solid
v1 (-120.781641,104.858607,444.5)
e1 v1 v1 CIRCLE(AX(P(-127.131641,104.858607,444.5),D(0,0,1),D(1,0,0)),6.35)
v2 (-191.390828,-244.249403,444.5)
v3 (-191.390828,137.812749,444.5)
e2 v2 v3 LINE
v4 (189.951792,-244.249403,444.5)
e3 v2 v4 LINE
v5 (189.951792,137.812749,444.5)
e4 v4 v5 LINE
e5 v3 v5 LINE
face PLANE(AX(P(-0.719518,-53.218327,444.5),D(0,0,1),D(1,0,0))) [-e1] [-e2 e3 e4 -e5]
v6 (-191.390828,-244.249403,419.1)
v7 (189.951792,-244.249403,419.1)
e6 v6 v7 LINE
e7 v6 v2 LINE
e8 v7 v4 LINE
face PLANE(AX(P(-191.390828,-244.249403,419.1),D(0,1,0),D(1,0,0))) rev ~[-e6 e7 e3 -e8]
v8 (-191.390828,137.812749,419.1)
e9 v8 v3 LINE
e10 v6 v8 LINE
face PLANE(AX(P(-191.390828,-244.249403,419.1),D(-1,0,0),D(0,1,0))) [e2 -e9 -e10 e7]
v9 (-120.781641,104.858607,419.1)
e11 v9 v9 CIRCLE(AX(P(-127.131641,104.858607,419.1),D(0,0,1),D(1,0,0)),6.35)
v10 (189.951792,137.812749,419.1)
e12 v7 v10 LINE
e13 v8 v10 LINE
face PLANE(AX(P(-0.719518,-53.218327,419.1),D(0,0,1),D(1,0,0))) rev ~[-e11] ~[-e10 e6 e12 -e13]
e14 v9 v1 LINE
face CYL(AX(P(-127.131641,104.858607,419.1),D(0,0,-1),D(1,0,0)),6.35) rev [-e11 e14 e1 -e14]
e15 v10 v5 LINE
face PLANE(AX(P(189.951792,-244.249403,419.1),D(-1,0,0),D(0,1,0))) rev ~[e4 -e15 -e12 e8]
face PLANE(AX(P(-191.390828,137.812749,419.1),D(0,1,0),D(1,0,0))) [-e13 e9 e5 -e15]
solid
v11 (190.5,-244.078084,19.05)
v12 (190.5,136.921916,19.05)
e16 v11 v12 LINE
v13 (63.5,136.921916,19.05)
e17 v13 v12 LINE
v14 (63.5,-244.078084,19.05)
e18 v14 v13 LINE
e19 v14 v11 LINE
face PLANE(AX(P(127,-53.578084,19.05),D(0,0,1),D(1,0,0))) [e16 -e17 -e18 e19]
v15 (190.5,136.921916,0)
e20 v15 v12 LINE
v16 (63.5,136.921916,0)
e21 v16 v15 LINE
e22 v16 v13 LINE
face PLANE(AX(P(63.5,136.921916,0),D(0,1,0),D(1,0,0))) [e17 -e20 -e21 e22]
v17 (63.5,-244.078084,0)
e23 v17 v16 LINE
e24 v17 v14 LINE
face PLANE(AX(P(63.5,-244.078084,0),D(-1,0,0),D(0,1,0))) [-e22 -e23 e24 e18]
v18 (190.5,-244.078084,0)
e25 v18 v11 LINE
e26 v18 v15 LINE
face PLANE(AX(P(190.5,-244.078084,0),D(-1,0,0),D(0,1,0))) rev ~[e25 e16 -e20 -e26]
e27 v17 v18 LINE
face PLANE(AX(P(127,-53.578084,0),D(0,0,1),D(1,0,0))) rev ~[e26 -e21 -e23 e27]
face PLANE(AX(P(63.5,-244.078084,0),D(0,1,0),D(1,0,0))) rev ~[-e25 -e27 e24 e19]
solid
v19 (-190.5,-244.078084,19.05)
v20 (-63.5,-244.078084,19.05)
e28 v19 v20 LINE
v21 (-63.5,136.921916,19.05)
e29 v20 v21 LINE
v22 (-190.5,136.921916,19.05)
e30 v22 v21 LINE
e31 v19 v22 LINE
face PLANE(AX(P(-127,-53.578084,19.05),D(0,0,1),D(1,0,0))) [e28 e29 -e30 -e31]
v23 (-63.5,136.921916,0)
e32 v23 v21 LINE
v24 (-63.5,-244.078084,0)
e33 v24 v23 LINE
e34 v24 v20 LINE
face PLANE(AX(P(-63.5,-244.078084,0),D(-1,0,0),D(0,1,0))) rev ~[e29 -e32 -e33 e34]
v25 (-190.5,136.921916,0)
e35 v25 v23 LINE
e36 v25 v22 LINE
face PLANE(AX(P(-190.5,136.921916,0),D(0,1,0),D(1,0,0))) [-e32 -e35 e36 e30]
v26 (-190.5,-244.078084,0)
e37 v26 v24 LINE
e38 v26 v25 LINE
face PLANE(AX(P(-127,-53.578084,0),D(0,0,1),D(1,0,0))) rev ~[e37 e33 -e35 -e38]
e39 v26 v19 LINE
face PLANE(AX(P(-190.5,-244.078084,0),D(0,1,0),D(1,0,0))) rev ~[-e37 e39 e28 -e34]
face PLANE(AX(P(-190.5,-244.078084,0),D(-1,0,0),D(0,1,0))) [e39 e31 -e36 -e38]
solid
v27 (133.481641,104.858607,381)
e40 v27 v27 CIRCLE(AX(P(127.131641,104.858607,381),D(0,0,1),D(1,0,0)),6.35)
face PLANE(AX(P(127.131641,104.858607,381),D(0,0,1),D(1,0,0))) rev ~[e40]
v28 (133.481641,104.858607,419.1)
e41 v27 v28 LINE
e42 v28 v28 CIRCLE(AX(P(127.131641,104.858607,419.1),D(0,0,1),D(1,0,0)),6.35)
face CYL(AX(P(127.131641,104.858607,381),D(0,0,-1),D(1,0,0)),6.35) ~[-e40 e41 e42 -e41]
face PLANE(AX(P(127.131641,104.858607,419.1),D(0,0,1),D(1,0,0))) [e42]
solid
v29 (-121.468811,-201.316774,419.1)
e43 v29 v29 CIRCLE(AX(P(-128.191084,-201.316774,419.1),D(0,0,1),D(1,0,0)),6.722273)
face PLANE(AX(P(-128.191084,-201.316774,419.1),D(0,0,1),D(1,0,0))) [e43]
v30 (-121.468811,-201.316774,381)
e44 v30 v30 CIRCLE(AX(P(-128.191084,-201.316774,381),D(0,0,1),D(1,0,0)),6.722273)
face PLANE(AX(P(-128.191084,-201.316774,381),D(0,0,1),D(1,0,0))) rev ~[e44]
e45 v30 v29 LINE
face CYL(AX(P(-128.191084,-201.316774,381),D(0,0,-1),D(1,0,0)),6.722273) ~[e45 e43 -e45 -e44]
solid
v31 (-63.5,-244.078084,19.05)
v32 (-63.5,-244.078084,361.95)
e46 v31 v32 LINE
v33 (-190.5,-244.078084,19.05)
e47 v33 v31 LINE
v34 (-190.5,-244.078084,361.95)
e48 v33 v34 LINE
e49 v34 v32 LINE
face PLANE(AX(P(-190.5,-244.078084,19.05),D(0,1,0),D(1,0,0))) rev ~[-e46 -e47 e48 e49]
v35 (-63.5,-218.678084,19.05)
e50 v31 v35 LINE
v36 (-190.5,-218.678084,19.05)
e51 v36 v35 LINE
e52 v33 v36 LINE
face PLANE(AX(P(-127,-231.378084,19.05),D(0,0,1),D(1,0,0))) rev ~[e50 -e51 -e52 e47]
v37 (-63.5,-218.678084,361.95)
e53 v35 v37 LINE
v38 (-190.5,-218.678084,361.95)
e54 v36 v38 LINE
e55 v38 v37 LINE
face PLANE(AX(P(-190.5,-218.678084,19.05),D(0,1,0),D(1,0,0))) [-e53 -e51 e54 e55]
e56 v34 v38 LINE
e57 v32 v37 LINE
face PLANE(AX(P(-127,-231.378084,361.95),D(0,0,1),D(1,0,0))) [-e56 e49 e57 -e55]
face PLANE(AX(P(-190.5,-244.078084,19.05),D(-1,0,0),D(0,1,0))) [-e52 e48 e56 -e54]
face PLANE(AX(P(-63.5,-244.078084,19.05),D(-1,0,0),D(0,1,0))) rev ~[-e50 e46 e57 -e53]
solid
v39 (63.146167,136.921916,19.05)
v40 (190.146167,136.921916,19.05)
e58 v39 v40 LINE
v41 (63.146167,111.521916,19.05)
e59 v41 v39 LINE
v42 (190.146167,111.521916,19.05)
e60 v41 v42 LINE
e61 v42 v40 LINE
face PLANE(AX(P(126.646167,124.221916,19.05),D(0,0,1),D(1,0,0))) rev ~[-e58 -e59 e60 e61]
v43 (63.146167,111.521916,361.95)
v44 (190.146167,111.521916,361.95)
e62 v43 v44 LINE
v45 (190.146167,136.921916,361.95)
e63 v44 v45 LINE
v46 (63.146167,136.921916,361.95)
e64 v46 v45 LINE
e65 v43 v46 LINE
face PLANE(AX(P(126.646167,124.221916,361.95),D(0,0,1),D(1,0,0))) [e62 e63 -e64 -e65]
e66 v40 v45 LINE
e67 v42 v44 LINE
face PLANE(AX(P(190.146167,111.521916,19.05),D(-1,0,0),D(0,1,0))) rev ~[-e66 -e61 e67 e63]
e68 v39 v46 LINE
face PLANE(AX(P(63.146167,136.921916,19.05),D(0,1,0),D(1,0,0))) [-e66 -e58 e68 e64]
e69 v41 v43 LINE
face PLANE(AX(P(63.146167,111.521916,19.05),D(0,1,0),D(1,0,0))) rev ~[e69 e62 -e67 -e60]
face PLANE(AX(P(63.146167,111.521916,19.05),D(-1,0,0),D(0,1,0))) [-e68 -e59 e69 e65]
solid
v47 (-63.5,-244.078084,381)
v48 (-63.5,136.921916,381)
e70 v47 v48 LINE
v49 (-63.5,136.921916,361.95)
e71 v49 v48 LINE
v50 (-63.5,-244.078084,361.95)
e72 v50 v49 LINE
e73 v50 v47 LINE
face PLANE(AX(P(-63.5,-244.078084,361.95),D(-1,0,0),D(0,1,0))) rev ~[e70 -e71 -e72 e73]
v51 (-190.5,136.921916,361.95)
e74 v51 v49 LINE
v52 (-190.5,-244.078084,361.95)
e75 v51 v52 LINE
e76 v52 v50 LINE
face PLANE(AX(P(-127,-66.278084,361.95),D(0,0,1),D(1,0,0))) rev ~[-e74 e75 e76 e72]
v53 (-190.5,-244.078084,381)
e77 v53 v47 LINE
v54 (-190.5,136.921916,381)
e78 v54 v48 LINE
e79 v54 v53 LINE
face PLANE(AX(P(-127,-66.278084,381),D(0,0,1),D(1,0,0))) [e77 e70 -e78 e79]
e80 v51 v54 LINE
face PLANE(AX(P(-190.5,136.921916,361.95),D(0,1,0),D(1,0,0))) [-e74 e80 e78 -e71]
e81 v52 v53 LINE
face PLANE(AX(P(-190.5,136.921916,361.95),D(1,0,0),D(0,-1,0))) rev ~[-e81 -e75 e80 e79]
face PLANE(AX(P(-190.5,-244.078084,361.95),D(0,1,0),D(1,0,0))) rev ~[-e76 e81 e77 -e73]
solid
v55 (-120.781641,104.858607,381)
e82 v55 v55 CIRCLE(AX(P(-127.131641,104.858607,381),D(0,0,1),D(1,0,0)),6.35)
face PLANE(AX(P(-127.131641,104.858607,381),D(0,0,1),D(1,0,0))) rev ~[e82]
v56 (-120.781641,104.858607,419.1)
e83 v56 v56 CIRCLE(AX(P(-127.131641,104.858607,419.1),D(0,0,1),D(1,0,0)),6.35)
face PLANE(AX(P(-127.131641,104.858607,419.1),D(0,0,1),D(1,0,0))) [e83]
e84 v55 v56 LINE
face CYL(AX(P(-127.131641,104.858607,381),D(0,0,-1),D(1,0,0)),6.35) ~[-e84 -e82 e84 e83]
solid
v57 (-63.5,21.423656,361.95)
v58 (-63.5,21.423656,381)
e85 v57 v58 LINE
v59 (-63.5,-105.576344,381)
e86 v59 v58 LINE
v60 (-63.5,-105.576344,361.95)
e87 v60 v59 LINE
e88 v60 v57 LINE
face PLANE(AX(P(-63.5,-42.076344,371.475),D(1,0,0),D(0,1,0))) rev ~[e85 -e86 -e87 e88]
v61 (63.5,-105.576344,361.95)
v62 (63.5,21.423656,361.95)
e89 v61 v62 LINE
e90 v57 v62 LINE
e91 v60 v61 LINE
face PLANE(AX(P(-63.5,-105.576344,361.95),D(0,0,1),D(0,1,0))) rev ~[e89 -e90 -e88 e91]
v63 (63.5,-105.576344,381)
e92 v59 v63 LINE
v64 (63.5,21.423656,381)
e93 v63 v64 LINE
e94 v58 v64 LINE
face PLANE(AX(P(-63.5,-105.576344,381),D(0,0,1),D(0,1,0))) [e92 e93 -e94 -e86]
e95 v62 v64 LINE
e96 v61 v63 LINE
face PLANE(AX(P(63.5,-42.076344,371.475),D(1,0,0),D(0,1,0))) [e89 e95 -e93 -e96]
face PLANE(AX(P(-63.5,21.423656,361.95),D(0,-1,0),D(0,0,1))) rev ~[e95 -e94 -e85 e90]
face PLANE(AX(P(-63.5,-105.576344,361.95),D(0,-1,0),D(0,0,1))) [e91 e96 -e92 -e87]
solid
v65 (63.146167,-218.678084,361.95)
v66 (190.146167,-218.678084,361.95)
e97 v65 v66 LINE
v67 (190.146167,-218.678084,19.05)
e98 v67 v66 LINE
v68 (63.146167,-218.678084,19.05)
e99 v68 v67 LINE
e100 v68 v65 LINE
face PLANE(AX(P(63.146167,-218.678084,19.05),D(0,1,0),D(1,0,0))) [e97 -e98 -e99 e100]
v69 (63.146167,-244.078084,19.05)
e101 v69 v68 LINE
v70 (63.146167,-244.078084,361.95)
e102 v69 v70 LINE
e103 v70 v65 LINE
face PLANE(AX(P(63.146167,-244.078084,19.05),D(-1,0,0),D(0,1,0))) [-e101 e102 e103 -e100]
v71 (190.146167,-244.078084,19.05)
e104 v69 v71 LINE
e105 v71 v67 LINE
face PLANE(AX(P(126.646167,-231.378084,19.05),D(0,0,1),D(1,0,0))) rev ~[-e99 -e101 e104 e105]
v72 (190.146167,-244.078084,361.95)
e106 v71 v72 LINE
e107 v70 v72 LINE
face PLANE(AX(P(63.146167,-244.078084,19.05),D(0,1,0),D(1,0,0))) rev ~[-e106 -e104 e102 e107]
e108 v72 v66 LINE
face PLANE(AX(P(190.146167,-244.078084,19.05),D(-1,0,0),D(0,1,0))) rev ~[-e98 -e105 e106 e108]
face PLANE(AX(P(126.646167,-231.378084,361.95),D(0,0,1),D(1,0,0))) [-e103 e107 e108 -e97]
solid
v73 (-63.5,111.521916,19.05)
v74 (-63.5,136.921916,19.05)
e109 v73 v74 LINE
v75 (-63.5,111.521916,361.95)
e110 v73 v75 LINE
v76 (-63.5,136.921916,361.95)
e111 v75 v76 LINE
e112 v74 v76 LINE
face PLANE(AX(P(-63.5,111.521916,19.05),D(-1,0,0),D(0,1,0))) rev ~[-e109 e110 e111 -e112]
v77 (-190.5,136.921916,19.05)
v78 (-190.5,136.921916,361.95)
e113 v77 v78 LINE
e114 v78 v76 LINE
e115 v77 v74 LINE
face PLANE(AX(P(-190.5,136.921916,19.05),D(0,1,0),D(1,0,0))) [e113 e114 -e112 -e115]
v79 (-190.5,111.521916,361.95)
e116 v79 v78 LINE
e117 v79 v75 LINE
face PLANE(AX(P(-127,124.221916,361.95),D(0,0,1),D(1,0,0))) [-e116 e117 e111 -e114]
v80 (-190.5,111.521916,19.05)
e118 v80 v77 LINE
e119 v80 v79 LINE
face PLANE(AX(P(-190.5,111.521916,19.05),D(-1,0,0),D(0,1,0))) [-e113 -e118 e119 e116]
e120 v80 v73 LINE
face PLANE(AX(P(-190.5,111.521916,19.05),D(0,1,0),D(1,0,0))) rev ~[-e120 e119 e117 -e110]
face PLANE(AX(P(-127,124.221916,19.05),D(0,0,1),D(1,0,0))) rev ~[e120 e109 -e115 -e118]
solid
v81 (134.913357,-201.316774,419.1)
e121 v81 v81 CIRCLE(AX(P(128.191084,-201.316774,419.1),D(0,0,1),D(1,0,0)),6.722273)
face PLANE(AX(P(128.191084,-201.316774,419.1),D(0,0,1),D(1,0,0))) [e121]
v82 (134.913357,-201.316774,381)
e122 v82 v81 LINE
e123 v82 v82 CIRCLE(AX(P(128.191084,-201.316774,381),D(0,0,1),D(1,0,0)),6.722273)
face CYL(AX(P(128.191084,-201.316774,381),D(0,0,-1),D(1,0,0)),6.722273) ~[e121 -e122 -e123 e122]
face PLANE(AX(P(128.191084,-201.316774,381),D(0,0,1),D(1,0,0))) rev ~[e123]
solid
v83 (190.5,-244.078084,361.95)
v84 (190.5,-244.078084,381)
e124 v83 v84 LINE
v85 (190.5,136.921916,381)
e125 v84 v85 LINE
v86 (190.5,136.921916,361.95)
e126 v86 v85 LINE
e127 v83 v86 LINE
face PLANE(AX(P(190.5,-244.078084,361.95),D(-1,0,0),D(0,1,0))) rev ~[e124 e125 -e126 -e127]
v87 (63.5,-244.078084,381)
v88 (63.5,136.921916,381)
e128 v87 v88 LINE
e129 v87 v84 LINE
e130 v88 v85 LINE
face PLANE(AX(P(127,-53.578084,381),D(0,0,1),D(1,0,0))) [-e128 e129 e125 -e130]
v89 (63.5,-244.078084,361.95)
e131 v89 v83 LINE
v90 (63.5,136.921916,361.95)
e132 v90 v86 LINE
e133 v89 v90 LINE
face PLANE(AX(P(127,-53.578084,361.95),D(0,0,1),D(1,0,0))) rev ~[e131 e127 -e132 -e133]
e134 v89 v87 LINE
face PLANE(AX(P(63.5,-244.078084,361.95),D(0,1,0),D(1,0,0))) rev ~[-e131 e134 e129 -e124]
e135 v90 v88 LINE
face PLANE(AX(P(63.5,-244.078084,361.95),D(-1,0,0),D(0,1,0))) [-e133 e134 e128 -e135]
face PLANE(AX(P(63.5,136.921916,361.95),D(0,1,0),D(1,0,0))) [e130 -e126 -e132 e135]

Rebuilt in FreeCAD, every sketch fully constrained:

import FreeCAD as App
import Part
import Sketcher

V = App.Vector
Q = App.Units.Quantity

doc = App.newDocument("Part")
body = doc.addObject("PartDesign::Body", "Body")
body.AllowCompound = True

sketch1 = body.newObject("Sketcher::SketchObject", "Sketch")
sketch1.AttachmentSupport = (doc.getObject("XY_Plane"), [""])
sketch1.MapMode = "FlatFace"
sketch1.addGeometry([
    Part.LineSegment(V(-190, 137, 0), V(-190, -244, 0)),
    Part.LineSegment(V(-190, -244, 0), V(-64, -244, 0)),
    Part.LineSegment(V(-64, -244, 0), V(-64, 137, 0)),
    Part.LineSegment(V(-64, 137, 0), V(-190, 137, 0)),
    Part.LineSegment(V(64, 137, 0), V(64, -244, 0)),
    Part.LineSegment(V(64, -244, 0), V(190, -244, 0)),
    Part.LineSegment(V(190, -244, 0), V(190, 137, 0)),
    Part.LineSegment(V(190, 137, 0), V(64, 137, 0)),
], False)
sketch1.addConstraint([
    Sketcher.Constraint("Coincident", 0, 2, 1, 1),
    Sketcher.Constraint("Coincident", 1, 2, 2, 1),
    Sketcher.Constraint("Coincident", 2, 2, 3, 1),
    Sketcher.Constraint("Coincident", 3, 2, 0, 1),
    Sketcher.Constraint("Coincident", 4, 2, 5, 1),
    Sketcher.Constraint("Coincident", 5, 2, 6, 1),
    Sketcher.Constraint("Coincident", 6, 2, 7, 1),
    Sketcher.Constraint("Coincident", 7, 2, 4, 1),
    Sketcher.Constraint("Vertical", 0),
    Sketcher.Constraint("Horizontal", 1),
    Sketcher.Constraint("Vertical", 2),
    Sketcher.Constraint("Horizontal", 3),
    Sketcher.Constraint("Vertical", 4),
    Sketcher.Constraint("Horizontal", 5),
    Sketcher.Constraint("Vertical", 6),
    Sketcher.Constraint("Horizontal", 7),
    Sketcher.Constraint("Symmetric", 1, 2, 4, 2, -2),
    Sketcher.Constraint("Symmetric", 3, 2, 6, 2, -2),
    Sketcher.Constraint("DistanceX", 1, 1, 1, 2, Q("5 in")),
    Sketcher.Constraint("DistanceY", 0, 2, 0, 1, Q("15 in")),
    Sketcher.Constraint("DistanceX", 1, 2, 4, 2, Q("5 in")),
    Sketcher.Constraint("DistanceY", 0, 2, -1, 1, 244.078084),
])
pad1 = body.newObject("PartDesign::Pad", "Pad")
pad1.Profile = sketch1
pad1.Length = Q("0.75 in")
body2 = doc.addObject("PartDesign::Body", "Body001")
body2.AllowCompound = True

sketch2 = body2.newObject("Sketcher::SketchObject", "Sketch001")
sketch2.AttachmentSupport = (doc.getObject("XY_Plane001"), [""])
sketch2.MapMode = "FlatFace"
sketch2.AttachmentOffset = App.Placement(V(0, 0, 0.75 * 25.4), App.Rotation())
sketch2.addGeometry([
    Part.LineSegment(V(-190, 137, 0), V(-190, 112, 0)),
    Part.LineSegment(V(-190, 112, 0), V(-64, 112, 0)),
    Part.LineSegment(V(-64, 112, 0), V(-64, 137, 0)),
    Part.LineSegment(V(-64, 137, 0), V(-190, 137, 0)),
    Part.LineSegment(V(63, 137, 0), V(63, 112, 0)),
    Part.LineSegment(V(63, 112, 0), V(190, 112, 0)),
    Part.LineSegment(V(190, 112, 0), V(190, 137, 0)),
    Part.LineSegment(V(190, 137, 0), V(63, 137, 0)),
    Part.LineSegment(V(63, -219, 0), V(63, -244, 0)),
    Part.LineSegment(V(63, -244, 0), V(190, -244, 0)),
    Part.LineSegment(V(190, -244, 0), V(190, -219, 0)),
    Part.LineSegment(V(190, -219, 0), V(63, -219, 0)),
    Part.LineSegment(V(-190, -219, 0), V(-190, -244, 0)),
    Part.LineSegment(V(-190, -244, 0), V(-64, -244, 0)),
    Part.LineSegment(V(-64, -244, 0), V(-64, -219, 0)),
    Part.LineSegment(V(-64, -219, 0), V(-190, -219, 0)),
], False)
sketch2.addConstraint([
    Sketcher.Constraint("Coincident", 0, 2, 1, 1),
    Sketcher.Constraint("Coincident", 1, 2, 2, 1),
    Sketcher.Constraint("Coincident", 2, 2, 3, 1),
    Sketcher.Constraint("Coincident", 3, 2, 0, 1),
    Sketcher.Constraint("Coincident", 4, 2, 5, 1),
    Sketcher.Constraint("Coincident", 5, 2, 6, 1),
    Sketcher.Constraint("Coincident", 6, 2, 7, 1),
    Sketcher.Constraint("Coincident", 7, 2, 4, 1),
    Sketcher.Constraint("Coincident", 8, 2, 9, 1),
    Sketcher.Constraint("Coincident", 9, 2, 10, 1),
    Sketcher.Constraint("Coincident", 10, 2, 11, 1),
    Sketcher.Constraint("Coincident", 11, 2, 8, 1),
    Sketcher.Constraint("Coincident", 12, 2, 13, 1),
    Sketcher.Constraint("Coincident", 13, 2, 14, 1),
    Sketcher.Constraint("Coincident", 14, 2, 15, 1),
    Sketcher.Constraint("Coincident", 15, 2, 12, 1),
    Sketcher.Constraint("Vertical", 0),
    Sketcher.Constraint("Horizontal", 1),
    Sketcher.Constraint("Vertical", 2),
    Sketcher.Constraint("Horizontal", 3),
    Sketcher.Constraint("Vertical", 4),
    Sketcher.Constraint("Horizontal", 5),
    Sketcher.Constraint("Vertical", 6),
    Sketcher.Constraint("Horizontal", 7),
    Sketcher.Constraint("Vertical", 8),
    Sketcher.Constraint("Horizontal", 9),
    Sketcher.Constraint("Vertical", 10),
    Sketcher.Constraint("Horizontal", 11),
    Sketcher.Constraint("Vertical", 12),
    Sketcher.Constraint("Horizontal", 13),
    Sketcher.Constraint("Vertical", 14),
    Sketcher.Constraint("Horizontal", 15),
    Sketcher.Constraint("Horizontal", 1, 2, 4, 2),
    Sketcher.Constraint("Horizontal", 3, 2, 6, 2),
    Sketcher.Constraint("Horizontal", 9, 2, 12, 2),
    Sketcher.Constraint("Horizontal", 11, 2, 14, 2),
    Sketcher.Constraint("Vertical", 7, 2, 8, 2),
    Sketcher.Constraint("Vertical", 6, 2, 9, 2),
    Sketcher.Constraint("Vertical", 3, 2, 12, 2),
    Sketcher.Constraint("Vertical", 2, 2, 13, 2),
    Sketcher.Constraint("Equal", 3, 5),
    Sketcher.Constraint("Equal", 6, 8),
    Sketcher.Constraint("DistanceX", 1, 1, 1, 2, Q("5 in")),
    Sketcher.Constraint("DistanceY", 0, 2, 0, 1, Q("1 in")),
    Sketcher.Constraint("DistanceY", 8, 2, 4, 2, Q("14 in")),
    Sketcher.Constraint("DistanceX", 0, 2, -1, 1, Q("7.5 in")),
    Sketcher.Constraint("DistanceY", -1, 1, 0, 2, 111.521916),
    Sketcher.Constraint("DistanceX", -1, 1, 4, 2, 63.146167),
])
pad2 = body2.newObject("PartDesign::Pad", "Pad001")
pad2.Profile = sketch2
pad2.Length = Q("13.5 in")
body3 = doc.addObject("PartDesign::Body", "Body002")
body3.AllowCompound = True

sketch3 = body3.newObject("Sketcher::SketchObject", "Sketch002")
sketch3.AttachmentSupport = (doc.getObject("XY_Plane002"), [""])
sketch3.MapMode = "FlatFace"
sketch3.AttachmentOffset = App.Placement(V(0, 0, 14.25 * 25.4), App.Rotation())
sketch3.addGeometry([
    Part.LineSegment(V(-190, -244, 0), V(-64, -244, 0)),
    Part.LineSegment(V(-64, -244, 0), V(-64, 137, 0)),
    Part.LineSegment(V(-64, 137, 0), V(-190, 137, 0)),
    Part.LineSegment(V(-190, 137, 0), V(-190, -244, 0)),
    Part.LineSegment(V(64, 137, 0), V(64, -244, 0)),
    Part.LineSegment(V(64, -244, 0), V(190, -244, 0)),
    Part.LineSegment(V(190, -244, 0), V(190, 137, 0)),
    Part.LineSegment(V(190, 137, 0), V(64, 137, 0)),
], False)
sketch3.addConstraint([
    Sketcher.Constraint("Coincident", 0, 2, 1, 1),
    Sketcher.Constraint("Coincident", 1, 2, 2, 1),
    Sketcher.Constraint("Coincident", 2, 2, 3, 1),
    Sketcher.Constraint("Coincident", 3, 2, 0, 1),
    Sketcher.Constraint("Coincident", 4, 2, 5, 1),
    Sketcher.Constraint("Coincident", 5, 2, 6, 1),
    Sketcher.Constraint("Coincident", 6, 2, 7, 1),
    Sketcher.Constraint("Coincident", 7, 2, 4, 1),
    Sketcher.Constraint("Horizontal", 0),
    Sketcher.Constraint("Vertical", 1),
    Sketcher.Constraint("Horizontal", 2),
    Sketcher.Constraint("Vertical", 3),
    Sketcher.Constraint("Vertical", 4),
    Sketcher.Constraint("Horizontal", 5),
    Sketcher.Constraint("Vertical", 6),
    Sketcher.Constraint("Horizontal", 7),
    Sketcher.Constraint("Symmetric", 0, 2, 4, 2, -2),
    Sketcher.Constraint("Symmetric", 2, 2, 6, 2, -2),
    Sketcher.Constraint("DistanceX", 0, 1, 0, 2, Q("5 in")),
    Sketcher.Constraint("DistanceY", 1, 1, 1, 2, Q("15 in")),
    Sketcher.Constraint("DistanceX", 0, 2, 4, 2, Q("5 in")),
    Sketcher.Constraint("DistanceY", 0, 2, -1, 1, 244.078084),
])
pad3 = body3.newObject("PartDesign::Pad", "Pad002")
pad3.Profile = sketch3
pad3.Length = Q("0.75 in")
body4 = doc.addObject("PartDesign::Body", "Body003")

sketch4 = body4.newObject("Sketcher::SketchObject", "Sketch003")
sketch4.AttachmentSupport = (doc.getObject("YZ_Plane003"), [""])
sketch4.MapMode = "FlatFace"
sketch4.AttachmentOffset = App.Placement(V(0, 0, -2.5 * 25.4), App.Rotation())
sketch4.addGeometry([
    Part.LineSegment(V(-106, 381, 0), V(-106, 362, 0)),
    Part.LineSegment(V(-106, 362, 0), V(21, 362, 0)),
    Part.LineSegment(V(21, 362, 0), V(21, 381, 0)),
    Part.LineSegment(V(21, 381, 0), V(-106, 381, 0)),
], False)
sketch4.addConstraint([
    Sketcher.Constraint("Coincident", 0, 2, 1, 1),
    Sketcher.Constraint("Coincident", 1, 2, 2, 1),
    Sketcher.Constraint("Coincident", 2, 2, 3, 1),
    Sketcher.Constraint("Coincident", 3, 2, 0, 1),
    Sketcher.Constraint("Vertical", 0),
    Sketcher.Constraint("Horizontal", 1),
    Sketcher.Constraint("Vertical", 2),
    Sketcher.Constraint("Horizontal", 3),
    Sketcher.Constraint("DistanceX", 1, 1, 1, 2, Q("5 in")),
    Sketcher.Constraint("DistanceY", -1, 1, 2, 2, Q("15 in")),
    Sketcher.Constraint("DistanceY", 0, 2, 0, 1, Q("0.75 in")),
    Sketcher.Constraint("DistanceX", 0, 2, -1, 1, 105.576344),
])
pad4 = body4.newObject("PartDesign::Pad", "Pad003")
pad4.Profile = sketch4
pad4.Length = Q("5 in")
body5 = doc.addObject("PartDesign::Body", "Body004")
body5.AllowCompound = True

sketch5 = body5.newObject("Sketcher::SketchObject", "Sketch004")
sketch5.AttachmentSupport = (doc.getObject("XY_Plane004"), [""])
sketch5.MapMode = "FlatFace"
sketch5.AttachmentOffset = App.Placement(V(0, 0, 15 * 25.4), App.Rotation())
sketch5.addGeometry([
    Part.Circle(V(-127, 105, 0), V(0, 0, 1), 6),
    Part.Circle(V(127, 105, 0), V(0, 0, 1), 6),
    Part.Circle(V(-128, -201, 0), V(0, 0, 1), 7),
    Part.Circle(V(128, -201, 0), V(0, 0, 1), 7),
], False)
sketch5.addConstraint([
    Sketcher.Constraint("Equal", 0, 1),
    Sketcher.Constraint("Equal", 2, 3),
    Sketcher.Constraint("Symmetric", 0, 3, 1, 3, -2),
    Sketcher.Constraint("Symmetric", 2, 3, 3, 3, -2),
    Sketcher.Constraint("Diameter", 0, Q("0.5 in")),
    Sketcher.Constraint("Diameter", 2, 13.444546),
    Sketcher.Constraint("DistanceX", 0, 3, -1, 1, 127.131641),
    Sketcher.Constraint("DistanceY", 2, 3, 0, 3, 306.175381),
    Sketcher.Constraint("DistanceX", 2, 3, 3, 3, 256.382168),
    Sketcher.Constraint("DistanceY", -1, 1, 0, 3, 104.858607),
])
pad5 = body5.newObject("PartDesign::Pad", "Pad004")
pad5.Profile = sketch5
pad5.Length = Q("1.5 in")
body6 = doc.addObject("PartDesign::Body", "Body005")

sketch6 = body6.newObject("Sketcher::SketchObject", "Sketch005")
sketch6.AttachmentSupport = (doc.getObject("XY_Plane005"), [""])
sketch6.MapMode = "FlatFace"
sketch6.AttachmentOffset = App.Placement(V(0, 0, 16.5 * 25.4), App.Rotation())
sketch6.addGeometry([
    Part.LineSegment(V(-191, 138, 0), V(-191, -244, 0)),
    Part.LineSegment(V(-191, -244, 0), V(190, -244, 0)),
    Part.LineSegment(V(190, -244, 0), V(190, 138, 0)),
    Part.LineSegment(V(190, 138, 0), V(-191, 138, 0)),
    Part.Circle(V(-127, 105, 0), V(0, 0, 1), 6),
], False)
sketch6.addConstraint([
    Sketcher.Constraint("Coincident", 0, 2, 1, 1),
    Sketcher.Constraint("Coincident", 1, 2, 2, 1),
    Sketcher.Constraint("Coincident", 2, 2, 3, 1),
    Sketcher.Constraint("Coincident", 3, 2, 0, 1),
    Sketcher.Constraint("Vertical", 0),
    Sketcher.Constraint("Horizontal", 1),
    Sketcher.Constraint("Vertical", 2),
    Sketcher.Constraint("Horizontal", 3),
    Sketcher.Constraint("Diameter", 4, Q("0.5 in")),
    Sketcher.Constraint("DistanceX", 1, 1, 1, 2, 381.342619),
    Sketcher.Constraint("DistanceY", 0, 2, 0, 1, 382.062152),
    Sketcher.Constraint("DistanceX", 4, 3, -1, 1, 127.131641),
    Sketcher.Constraint("DistanceX", -1, 1, 1, 2, 189.951792),
    Sketcher.Constraint("DistanceY", -1, 1, 2, 2, 137.812749),
    Sketcher.Constraint("DistanceY", 0, 2, 4, 3, 349.10801),
])
pad6 = body6.newObject("PartDesign::Pad", "Pad005")
pad6.Profile = sketch6
pad6.Length = Q("1 in")

doc.recompute()
